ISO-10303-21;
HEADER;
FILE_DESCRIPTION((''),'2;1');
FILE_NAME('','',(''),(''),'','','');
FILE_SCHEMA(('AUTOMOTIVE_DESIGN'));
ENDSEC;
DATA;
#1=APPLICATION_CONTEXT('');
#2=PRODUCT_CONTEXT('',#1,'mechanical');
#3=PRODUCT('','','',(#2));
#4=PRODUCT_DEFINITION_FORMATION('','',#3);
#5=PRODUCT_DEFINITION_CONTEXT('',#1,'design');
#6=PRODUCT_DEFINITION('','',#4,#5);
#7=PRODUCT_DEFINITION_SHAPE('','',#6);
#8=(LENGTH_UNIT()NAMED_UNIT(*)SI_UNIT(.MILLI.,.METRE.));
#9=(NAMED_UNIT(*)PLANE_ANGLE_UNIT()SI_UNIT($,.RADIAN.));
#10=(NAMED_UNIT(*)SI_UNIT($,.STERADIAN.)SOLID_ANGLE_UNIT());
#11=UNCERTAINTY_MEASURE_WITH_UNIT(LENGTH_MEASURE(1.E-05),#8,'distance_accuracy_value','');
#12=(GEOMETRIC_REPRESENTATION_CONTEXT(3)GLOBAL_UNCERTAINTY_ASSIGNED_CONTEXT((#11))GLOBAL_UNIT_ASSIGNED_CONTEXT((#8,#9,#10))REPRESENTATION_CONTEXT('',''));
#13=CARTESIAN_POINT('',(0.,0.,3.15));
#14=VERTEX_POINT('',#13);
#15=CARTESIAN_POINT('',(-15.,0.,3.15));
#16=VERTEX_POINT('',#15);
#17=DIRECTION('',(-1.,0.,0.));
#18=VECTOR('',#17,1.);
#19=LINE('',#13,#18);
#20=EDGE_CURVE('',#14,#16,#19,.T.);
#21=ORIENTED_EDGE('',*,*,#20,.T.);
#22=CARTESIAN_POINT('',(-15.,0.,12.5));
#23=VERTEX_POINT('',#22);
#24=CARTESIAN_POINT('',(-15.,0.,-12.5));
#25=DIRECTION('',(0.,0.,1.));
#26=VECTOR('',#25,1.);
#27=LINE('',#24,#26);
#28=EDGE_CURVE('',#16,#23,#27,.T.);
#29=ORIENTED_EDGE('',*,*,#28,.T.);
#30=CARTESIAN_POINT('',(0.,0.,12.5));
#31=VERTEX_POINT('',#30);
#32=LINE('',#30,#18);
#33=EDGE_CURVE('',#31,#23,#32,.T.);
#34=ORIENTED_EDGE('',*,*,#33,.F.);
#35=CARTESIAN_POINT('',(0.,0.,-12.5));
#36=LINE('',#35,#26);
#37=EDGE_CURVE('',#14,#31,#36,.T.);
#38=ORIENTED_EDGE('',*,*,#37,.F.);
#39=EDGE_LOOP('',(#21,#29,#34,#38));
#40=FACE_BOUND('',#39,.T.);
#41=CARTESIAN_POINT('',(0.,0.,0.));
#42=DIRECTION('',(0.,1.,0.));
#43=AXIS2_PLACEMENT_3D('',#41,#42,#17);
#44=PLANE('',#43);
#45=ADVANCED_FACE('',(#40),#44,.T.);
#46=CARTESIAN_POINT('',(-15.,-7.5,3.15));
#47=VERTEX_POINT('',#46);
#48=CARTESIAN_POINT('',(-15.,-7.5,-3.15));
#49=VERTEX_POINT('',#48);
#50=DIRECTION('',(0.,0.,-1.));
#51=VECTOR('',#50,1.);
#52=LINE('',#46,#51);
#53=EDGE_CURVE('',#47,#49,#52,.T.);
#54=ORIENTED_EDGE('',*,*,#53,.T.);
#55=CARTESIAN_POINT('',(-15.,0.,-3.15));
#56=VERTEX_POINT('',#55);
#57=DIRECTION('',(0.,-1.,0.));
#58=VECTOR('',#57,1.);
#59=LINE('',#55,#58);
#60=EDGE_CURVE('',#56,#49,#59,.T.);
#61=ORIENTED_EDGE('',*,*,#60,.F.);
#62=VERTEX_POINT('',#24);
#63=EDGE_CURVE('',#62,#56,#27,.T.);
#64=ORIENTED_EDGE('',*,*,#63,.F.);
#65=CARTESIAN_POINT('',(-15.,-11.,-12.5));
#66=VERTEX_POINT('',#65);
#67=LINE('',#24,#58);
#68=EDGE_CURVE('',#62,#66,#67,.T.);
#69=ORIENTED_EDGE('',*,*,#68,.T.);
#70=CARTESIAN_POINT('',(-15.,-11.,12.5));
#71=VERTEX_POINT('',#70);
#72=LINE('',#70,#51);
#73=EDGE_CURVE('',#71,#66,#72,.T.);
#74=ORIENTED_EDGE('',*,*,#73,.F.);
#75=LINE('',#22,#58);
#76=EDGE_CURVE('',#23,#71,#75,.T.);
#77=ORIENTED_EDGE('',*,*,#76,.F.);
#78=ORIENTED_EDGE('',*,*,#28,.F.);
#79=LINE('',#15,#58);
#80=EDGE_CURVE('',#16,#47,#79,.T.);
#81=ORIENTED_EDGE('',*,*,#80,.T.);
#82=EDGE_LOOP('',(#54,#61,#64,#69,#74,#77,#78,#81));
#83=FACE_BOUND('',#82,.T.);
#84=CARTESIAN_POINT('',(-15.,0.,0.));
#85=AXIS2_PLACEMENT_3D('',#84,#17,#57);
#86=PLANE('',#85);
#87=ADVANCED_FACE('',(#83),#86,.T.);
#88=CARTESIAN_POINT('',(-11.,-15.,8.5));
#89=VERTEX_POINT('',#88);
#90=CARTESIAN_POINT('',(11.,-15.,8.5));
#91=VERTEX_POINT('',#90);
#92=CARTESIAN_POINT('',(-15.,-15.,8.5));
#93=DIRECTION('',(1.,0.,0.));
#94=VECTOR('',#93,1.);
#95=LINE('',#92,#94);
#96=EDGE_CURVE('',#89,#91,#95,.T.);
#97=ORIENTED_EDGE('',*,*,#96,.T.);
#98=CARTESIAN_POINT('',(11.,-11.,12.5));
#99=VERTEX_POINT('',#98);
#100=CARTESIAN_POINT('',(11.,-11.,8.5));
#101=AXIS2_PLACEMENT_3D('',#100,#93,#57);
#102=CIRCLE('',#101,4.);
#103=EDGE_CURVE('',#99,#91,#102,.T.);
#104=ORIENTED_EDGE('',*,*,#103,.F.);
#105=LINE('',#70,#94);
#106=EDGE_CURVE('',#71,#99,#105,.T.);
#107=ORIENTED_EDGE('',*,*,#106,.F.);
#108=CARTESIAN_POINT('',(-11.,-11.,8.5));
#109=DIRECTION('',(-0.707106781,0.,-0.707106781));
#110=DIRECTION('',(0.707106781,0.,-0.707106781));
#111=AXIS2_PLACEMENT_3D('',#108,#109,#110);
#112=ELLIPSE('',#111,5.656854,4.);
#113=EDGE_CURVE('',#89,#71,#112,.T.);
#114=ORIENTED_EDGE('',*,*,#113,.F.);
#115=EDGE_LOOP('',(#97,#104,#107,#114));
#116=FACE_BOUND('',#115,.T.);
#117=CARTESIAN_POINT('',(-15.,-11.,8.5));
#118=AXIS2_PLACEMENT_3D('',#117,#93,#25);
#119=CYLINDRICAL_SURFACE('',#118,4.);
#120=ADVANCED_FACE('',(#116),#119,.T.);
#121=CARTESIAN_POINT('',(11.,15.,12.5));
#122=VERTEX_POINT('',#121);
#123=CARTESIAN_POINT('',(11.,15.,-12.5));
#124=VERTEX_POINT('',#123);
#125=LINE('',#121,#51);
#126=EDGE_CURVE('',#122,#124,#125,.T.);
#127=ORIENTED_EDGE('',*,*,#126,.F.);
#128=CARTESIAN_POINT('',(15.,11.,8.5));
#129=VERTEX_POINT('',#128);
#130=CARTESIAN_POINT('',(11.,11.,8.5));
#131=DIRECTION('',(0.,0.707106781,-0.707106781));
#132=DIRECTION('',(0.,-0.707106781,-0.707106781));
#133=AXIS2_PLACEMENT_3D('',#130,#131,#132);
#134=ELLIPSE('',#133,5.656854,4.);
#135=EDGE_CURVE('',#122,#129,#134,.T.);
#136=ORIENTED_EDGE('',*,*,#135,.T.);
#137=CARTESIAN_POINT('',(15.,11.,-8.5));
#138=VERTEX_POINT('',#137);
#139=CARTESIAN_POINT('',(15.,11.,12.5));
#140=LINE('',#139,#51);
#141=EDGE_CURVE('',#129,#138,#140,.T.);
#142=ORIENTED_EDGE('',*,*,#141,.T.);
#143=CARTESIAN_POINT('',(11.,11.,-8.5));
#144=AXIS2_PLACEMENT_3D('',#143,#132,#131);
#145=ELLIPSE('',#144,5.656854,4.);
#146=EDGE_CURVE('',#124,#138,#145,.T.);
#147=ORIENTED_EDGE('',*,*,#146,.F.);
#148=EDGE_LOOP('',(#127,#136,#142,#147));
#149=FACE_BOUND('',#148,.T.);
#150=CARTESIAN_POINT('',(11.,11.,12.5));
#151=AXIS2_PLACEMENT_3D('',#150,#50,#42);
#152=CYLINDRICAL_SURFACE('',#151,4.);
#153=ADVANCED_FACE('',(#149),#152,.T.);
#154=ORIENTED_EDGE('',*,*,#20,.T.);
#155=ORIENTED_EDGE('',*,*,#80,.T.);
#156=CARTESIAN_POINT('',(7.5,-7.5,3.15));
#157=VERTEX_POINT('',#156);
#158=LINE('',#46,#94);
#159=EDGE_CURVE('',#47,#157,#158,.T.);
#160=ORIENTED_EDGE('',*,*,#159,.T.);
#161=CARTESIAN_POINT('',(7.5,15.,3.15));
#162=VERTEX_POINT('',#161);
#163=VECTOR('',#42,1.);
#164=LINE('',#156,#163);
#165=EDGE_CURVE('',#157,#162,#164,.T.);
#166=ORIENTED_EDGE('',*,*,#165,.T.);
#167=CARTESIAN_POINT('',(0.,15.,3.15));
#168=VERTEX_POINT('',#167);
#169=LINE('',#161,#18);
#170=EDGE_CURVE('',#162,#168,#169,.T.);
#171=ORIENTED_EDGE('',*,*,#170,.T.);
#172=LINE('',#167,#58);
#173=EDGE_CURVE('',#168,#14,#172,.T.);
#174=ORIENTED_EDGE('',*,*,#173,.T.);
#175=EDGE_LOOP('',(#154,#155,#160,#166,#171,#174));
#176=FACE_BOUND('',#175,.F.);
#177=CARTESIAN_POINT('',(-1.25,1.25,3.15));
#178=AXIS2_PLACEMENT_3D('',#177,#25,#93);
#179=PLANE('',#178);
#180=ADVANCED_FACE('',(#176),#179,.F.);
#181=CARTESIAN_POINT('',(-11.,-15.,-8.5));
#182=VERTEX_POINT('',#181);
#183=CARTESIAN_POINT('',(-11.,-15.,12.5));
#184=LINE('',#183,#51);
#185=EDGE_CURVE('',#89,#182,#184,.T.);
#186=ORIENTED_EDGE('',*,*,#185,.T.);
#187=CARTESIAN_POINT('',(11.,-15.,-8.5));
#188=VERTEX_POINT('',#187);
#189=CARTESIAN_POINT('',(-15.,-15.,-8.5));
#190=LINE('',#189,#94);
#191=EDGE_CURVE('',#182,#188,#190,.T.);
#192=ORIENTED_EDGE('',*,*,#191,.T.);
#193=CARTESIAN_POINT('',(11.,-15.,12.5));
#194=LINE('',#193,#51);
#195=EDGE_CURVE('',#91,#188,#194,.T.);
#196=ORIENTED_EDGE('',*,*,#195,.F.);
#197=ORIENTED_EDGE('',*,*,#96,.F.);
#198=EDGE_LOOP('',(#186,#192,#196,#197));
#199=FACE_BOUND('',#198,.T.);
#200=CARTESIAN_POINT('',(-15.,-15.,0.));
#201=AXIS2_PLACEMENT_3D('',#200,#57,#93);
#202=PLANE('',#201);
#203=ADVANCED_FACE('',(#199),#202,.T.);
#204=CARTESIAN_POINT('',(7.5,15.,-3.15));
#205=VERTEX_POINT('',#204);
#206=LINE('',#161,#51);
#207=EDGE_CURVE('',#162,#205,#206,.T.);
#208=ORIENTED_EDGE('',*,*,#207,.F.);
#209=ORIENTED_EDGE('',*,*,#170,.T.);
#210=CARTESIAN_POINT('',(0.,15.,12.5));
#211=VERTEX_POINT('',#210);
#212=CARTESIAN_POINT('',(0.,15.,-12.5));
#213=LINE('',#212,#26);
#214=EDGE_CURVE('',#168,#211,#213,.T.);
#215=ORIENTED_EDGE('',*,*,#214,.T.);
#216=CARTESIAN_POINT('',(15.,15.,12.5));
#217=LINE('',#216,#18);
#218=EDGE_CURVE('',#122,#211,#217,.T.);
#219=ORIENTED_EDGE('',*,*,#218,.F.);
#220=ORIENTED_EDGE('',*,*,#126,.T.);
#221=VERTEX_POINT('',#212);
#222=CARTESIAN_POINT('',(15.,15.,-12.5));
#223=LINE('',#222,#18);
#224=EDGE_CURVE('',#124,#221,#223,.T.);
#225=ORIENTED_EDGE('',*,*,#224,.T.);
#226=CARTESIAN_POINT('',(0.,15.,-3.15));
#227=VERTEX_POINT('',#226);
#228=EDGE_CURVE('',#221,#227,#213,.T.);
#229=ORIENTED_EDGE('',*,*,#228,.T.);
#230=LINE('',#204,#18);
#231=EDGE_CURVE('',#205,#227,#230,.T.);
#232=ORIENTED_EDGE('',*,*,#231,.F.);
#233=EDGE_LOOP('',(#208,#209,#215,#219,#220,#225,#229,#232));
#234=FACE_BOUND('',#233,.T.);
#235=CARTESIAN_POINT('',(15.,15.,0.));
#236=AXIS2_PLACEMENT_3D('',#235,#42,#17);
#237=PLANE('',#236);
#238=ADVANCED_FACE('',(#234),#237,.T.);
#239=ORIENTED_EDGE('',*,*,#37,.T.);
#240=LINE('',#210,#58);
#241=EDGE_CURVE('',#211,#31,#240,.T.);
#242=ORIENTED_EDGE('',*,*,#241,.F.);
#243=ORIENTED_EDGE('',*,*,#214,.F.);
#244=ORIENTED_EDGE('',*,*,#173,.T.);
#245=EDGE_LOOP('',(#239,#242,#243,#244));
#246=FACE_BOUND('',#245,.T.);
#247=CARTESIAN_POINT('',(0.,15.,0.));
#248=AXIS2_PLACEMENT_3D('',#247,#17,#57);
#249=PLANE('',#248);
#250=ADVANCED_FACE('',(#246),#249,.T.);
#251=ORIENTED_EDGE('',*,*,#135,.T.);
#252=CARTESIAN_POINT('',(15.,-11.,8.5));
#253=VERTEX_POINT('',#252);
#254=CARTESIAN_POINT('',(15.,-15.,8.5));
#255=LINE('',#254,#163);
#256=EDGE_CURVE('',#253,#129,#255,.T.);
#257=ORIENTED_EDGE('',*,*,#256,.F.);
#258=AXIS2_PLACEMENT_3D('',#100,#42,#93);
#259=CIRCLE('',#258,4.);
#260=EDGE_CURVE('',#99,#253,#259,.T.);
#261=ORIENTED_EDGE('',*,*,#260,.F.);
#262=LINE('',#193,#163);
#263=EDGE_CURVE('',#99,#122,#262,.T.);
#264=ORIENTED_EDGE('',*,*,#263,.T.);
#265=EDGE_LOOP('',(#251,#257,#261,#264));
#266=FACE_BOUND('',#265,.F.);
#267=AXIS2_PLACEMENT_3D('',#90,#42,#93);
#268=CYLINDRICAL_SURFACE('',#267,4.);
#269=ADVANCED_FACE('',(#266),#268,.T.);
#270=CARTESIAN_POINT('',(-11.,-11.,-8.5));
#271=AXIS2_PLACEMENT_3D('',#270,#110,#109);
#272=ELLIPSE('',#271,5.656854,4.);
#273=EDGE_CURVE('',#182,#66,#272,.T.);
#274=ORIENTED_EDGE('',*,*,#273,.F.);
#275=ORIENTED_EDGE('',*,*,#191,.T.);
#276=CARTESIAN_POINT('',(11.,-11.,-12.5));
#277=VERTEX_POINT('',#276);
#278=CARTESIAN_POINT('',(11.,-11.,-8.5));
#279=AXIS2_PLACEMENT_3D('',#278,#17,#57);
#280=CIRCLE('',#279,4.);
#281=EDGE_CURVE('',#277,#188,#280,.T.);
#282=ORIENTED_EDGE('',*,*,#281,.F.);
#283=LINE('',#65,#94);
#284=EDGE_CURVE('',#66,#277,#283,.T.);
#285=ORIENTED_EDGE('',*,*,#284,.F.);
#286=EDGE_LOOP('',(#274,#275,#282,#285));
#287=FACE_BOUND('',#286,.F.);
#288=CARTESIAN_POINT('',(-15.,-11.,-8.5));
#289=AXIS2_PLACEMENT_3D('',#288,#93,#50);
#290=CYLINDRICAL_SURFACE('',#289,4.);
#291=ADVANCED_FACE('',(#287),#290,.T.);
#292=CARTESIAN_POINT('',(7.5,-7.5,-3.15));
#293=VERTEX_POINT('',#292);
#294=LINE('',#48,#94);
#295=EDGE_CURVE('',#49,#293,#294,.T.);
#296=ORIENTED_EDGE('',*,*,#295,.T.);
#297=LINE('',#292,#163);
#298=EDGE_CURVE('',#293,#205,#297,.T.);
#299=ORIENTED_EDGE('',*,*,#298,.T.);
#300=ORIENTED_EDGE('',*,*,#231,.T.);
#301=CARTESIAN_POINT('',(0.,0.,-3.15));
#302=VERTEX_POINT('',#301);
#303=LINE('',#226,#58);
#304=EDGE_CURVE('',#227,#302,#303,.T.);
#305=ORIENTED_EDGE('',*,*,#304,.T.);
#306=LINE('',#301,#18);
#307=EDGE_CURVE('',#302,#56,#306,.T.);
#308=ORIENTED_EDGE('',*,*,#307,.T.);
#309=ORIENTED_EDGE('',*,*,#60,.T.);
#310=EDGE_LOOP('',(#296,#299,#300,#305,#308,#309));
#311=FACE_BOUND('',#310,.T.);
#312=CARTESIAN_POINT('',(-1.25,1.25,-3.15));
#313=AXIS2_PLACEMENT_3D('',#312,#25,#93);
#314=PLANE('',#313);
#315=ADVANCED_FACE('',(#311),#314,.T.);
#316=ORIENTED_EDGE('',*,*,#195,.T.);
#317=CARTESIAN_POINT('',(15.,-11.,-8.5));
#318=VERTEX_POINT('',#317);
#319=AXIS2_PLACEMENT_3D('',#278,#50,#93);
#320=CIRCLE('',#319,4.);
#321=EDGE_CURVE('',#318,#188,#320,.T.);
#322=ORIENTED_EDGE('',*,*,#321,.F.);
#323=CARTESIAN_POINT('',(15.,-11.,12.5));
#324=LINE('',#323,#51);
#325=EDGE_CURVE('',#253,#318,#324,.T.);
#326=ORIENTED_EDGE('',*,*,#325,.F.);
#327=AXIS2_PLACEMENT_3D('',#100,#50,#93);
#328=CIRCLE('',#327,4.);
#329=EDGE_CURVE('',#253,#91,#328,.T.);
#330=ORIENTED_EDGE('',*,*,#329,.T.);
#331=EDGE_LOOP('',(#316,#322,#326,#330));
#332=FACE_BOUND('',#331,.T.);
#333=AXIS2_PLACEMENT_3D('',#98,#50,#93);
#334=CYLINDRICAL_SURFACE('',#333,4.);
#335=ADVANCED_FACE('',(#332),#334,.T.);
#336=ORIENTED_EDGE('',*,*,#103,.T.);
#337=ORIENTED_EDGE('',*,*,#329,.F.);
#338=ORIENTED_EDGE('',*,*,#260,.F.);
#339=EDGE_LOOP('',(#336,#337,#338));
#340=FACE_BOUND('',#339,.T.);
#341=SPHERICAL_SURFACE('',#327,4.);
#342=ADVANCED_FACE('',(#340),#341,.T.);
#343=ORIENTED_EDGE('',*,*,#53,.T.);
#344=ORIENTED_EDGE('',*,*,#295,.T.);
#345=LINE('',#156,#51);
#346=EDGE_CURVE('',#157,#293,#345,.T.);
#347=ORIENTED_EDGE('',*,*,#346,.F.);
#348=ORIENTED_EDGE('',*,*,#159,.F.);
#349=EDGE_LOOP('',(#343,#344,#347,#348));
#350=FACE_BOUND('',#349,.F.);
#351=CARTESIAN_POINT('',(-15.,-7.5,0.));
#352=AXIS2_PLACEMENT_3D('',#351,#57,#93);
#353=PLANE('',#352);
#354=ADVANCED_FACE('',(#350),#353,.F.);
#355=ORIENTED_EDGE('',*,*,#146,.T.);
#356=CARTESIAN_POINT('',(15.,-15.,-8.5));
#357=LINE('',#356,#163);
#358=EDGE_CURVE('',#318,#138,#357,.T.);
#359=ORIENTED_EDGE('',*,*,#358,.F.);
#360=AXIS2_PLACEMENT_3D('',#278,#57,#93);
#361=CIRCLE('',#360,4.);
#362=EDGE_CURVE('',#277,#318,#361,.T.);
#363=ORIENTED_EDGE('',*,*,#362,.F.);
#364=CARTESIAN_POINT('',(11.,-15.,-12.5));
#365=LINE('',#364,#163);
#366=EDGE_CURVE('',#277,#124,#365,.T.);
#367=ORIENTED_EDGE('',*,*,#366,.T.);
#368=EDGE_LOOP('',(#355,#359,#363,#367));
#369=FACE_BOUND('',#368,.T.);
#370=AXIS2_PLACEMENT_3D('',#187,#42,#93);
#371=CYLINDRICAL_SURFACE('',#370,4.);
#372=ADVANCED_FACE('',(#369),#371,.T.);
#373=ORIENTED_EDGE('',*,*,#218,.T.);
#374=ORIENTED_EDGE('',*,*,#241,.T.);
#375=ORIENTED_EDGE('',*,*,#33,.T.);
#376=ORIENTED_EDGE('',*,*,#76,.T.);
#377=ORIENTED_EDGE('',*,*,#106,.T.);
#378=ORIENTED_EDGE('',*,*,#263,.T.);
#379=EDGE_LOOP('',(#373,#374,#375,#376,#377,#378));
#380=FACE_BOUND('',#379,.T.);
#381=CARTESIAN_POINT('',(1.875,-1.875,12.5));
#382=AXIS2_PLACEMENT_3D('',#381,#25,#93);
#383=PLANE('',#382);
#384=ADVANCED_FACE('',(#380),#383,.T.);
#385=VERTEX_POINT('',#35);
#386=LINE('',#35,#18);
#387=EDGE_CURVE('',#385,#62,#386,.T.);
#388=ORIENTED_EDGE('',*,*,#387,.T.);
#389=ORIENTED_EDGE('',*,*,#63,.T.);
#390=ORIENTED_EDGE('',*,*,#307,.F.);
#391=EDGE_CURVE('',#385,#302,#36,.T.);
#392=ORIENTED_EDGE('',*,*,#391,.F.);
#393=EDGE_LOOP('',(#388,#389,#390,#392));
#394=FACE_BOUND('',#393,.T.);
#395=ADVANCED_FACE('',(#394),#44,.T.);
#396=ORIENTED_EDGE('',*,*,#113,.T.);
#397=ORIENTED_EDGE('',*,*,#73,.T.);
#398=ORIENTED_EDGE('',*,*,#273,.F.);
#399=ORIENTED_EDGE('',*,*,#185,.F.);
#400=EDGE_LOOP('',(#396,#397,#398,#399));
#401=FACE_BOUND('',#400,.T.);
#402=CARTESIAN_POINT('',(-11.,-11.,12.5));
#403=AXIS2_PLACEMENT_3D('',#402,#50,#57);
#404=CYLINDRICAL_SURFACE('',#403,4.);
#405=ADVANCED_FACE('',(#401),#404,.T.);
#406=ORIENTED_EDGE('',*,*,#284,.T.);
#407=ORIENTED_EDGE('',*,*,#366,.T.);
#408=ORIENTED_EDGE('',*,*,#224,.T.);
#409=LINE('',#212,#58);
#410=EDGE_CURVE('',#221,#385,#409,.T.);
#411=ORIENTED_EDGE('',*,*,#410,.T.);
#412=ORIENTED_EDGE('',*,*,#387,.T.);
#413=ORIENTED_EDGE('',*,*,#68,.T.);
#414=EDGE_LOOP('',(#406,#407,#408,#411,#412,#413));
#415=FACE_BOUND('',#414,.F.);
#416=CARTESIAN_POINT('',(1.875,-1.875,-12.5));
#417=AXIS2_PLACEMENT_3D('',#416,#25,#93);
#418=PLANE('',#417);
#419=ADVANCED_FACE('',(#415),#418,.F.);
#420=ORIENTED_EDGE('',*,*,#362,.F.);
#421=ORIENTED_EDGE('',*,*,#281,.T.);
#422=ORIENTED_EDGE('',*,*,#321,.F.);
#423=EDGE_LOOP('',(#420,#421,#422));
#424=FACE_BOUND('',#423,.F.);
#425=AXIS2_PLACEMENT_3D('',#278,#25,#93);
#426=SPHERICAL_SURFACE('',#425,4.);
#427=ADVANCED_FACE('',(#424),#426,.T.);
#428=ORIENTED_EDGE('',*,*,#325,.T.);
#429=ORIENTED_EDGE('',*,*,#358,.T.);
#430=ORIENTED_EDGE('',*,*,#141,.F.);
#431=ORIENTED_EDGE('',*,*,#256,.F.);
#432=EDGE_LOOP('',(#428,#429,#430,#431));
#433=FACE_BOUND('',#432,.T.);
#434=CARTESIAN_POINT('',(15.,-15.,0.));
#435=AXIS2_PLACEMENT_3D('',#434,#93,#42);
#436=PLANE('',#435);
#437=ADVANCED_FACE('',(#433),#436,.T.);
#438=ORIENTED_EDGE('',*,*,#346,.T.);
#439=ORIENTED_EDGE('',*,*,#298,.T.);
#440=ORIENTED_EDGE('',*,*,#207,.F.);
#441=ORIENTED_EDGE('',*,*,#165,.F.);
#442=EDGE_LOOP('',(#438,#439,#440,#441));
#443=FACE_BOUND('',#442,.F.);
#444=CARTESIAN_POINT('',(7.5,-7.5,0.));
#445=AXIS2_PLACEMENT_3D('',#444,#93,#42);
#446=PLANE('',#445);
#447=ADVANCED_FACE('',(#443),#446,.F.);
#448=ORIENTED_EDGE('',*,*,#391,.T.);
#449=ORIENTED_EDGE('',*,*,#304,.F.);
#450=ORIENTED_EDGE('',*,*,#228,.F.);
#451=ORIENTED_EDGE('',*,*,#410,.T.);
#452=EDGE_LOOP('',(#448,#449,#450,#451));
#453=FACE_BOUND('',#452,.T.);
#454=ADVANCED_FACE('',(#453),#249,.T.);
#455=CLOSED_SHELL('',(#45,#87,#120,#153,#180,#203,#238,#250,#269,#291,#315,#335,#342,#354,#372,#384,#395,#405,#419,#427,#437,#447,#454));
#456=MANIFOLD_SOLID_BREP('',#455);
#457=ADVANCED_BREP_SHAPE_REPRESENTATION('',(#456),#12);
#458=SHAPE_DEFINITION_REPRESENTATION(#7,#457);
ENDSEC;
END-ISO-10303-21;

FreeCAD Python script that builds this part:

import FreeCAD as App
import Part
import Sketcher

V = App.Vector


def edges_at(feature, points):
    """Names of the edges that pass closest to the given points."""
    edges = feature.Shape.Edges
    near = lambda p: min(range(len(edges)), key=lambda i: edges[i].distToShape(Part.Vertex(*p))[0])
    return sorted({f"Edge{near(p) + 1}" for p in points})

doc = App.newDocument("Part")
body = doc.addObject("PartDesign::Body", "Body")

# Sketch on XY plane
sketch1 = body.newObject("Sketcher::SketchObject", "Sketch")
sketch1.AttachmentSupport = (doc.getObject("XY_Plane"), [""])
sketch1.MapMode = "FlatFace"
sketch1.addGeometry(Part.LineSegment(V(15, 15, 0), V(0, 15, 0)), False)
sketch1.addGeometry(Part.LineSegment(V(0, 15, 0), V(0, 0, 0)), False)
sketch1.addGeometry(Part.LineSegment(V(0, 0, 0), V(-15, 0, 0)), False)
sketch1.addGeometry(Part.LineSegment(V(-15, 0, 0), V(-15, -15, 0)), False)
sketch1.addGeometry(Part.LineSegment(V(-15, -15, 0), V(15, -15, 0)), False)
sketch1.addGeometry(Part.LineSegment(V(15, -15, 0), V(15, 15, 0)), False)
sketch1.addConstraint(Sketcher.Constraint("Coincident", 0, 2, 1, 1))
sketch1.addConstraint(Sketcher.Constraint("Coincident", 1, 2, 2, 1))
sketch1.addConstraint(Sketcher.Constraint("Coincident", 2, 2, 3, 1))
sketch1.addConstraint(Sketcher.Constraint("Coincident", 3, 2, 4, 1))
sketch1.addConstraint(Sketcher.Constraint("Coincident", 4, 2, 5, 1))
sketch1.addConstraint(Sketcher.Constraint("Coincident", 5, 2, 0, 1))
sketch1.addConstraint(Sketcher.Constraint("Horizontal", 0))
sketch1.addConstraint(Sketcher.Constraint("Vertical", 1))
sketch1.addConstraint(Sketcher.Constraint("Horizontal", 2))
sketch1.addConstraint(Sketcher.Constraint("Vertical", 3))
sketch1.addConstraint(Sketcher.Constraint("Horizontal", 4))
sketch1.addConstraint(Sketcher.Constraint("Vertical", 5))
sketch1.addConstraint(Sketcher.Constraint("Coincident", 1, 2, -1, 1))
sketch1.addConstraint(Sketcher.Constraint("Symmetric", 3, 2, 5, 2, -1, 1))
sketch1.addConstraint(Sketcher.Constraint("Equal", 2, 1))
sketch1.addConstraint(Sketcher.Constraint("DistanceX", 0, 2, 0, 1, 15.0))
pad1 = body.newObject("PartDesign::Pad", "Pad")
pad1.Profile = sketch1
pad1.Length = 25
pad1.Midplane = True

# Sketch on XY plane
sketch2 = body.newObject("Sketcher::SketchObject", "Sketch001")
sketch2.AttachmentSupport = (doc.getObject("XY_Plane"), [""])
sketch2.MapMode = "FlatFace"
sketch2.addGeometry(Part.LineSegment(V(8, 15, 0), V(0, 15, 0)), False)
sketch2.addGeometry(Part.LineSegment(V(0, 15, 0), V(0, 0, 0)), False)
sketch2.addGeometry(Part.LineSegment(V(0, 0, 0), V(-15, 0, 0)), False)
sketch2.addGeometry(Part.LineSegment(V(-15, 0, 0), V(-15, -8, 0)), False)
sketch2.addGeometry(Part.LineSegment(V(-15, -8, 0), V(8, -8, 0)), False)
sketch2.addGeometry(Part.LineSegment(V(8, -8, 0), V(8, 15, 0)), False)
sketch2.addConstraint(Sketcher.Constraint("Coincident", 0, 2, 1, 1))
sketch2.addConstraint(Sketcher.Constraint("Coincident", 1, 2, 2, 1))
sketch2.addConstraint(Sketcher.Constraint("Coincident", 2, 2, 3, 1))
sketch2.addConstraint(Sketcher.Constraint("Coincident", 3, 2, 4, 1))
sketch2.addConstraint(Sketcher.Constraint("Coincident", 4, 2, 5, 1))
sketch2.addConstraint(Sketcher.Constraint("Coincident", 5, 2, 0, 1))
sketch2.addConstraint(Sketcher.Constraint("Horizontal", 0))
sketch2.addConstraint(Sketcher.Constraint("Vertical", 1))
sketch2.addConstraint(Sketcher.Constraint("Horizontal", 2))
sketch2.addConstraint(Sketcher.Constraint("Vertical", 3))
sketch2.addConstraint(Sketcher.Constraint("Horizontal", 4))
sketch2.addConstraint(Sketcher.Constraint("Vertical", 5))
sketch2.addConstraint(Sketcher.Constraint("Coincident", 1, 2, -1, 1))
sketch2.addConstraint(Sketcher.Constraint("Equal", 2, 1))
sketch2.addConstraint(Sketcher.Constraint("Equal", 0, 3))
sketch2.addConstraint(Sketcher.Constraint("DistanceX", 2, 2, 2, 1, 15.0))
sketch2.addConstraint(Sketcher.Constraint("DistanceX", 0, 2, 0, 1, 7.5))
pocket1 = body.newObject("PartDesign::Pocket", "Pocket")
pocket1.Profile = sketch2
pocket1.Length = 6.3
pocket1.Midplane = True
doc.recompute()

fillet = body.newObject("PartDesign::Fillet", "Fillet")
fillet.Base = (pocket1, edges_at(pocket1, [
    (-15, -15, 0),
    (15, -15, 0),
    (15, 15, 0),
    (15, 0, 12.5),
    (0, -15, 12.5),
    (15, 0, -12.5),
    (0, -15, -12.5),
]))
fillet.Radius = 4

doc.recompute()
